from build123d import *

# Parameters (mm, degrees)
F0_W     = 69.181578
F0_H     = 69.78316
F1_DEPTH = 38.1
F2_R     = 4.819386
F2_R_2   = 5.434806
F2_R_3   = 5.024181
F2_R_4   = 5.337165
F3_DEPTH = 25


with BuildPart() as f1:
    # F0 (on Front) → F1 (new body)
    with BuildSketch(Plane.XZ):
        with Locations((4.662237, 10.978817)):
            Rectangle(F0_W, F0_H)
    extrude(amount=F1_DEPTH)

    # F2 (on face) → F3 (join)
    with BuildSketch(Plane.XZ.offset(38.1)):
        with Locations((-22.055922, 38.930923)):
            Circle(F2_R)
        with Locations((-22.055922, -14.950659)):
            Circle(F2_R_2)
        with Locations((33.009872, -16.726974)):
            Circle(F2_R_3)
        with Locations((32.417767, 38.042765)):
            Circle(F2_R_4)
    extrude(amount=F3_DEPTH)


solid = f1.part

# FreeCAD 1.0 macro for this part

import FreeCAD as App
import Part
import Sketcher

doc = App.newDocument("Part")
body = doc.addObject("PartDesign::Body", "Body")

sketch1 = body.newObject("Sketcher::SketchObject", "Sketch")
sketch1.AttachmentSupport = (doc.getObject("XZ_Plane"), [""])
sketch1.MapMode = "FlatFace"
sketch1.addGeometry([
    Part.LineSegment(App.Vector(-29.928552, 45.870397, 0), App.Vector(-29.928552, -23.912763, 0)),
    Part.LineSegment(App.Vector(-29.928552, -23.912763, 0), App.Vector(39.253026, -23.912763, 0)),
    Part.LineSegment(App.Vector(39.253026, -23.912763, 0), App.Vector(39.253026, 45.870397, 0)),
    Part.LineSegment(App.Vector(39.253026, 45.870397, 0), App.Vector(-29.928552, 45.870397, 0)),
], False)
sketch1.addConstraint([
    Sketcher.Constraint("Coincident", 0, 2, 1, 1),
    Sketcher.Constraint("Coincident", 1, 2, 2, 1),
    Sketcher.Constraint("Coincident", 2, 2, 3, 1),
    Sketcher.Constraint("Coincident", 3, 2, 0, 1),
    Sketcher.Constraint("Vertical", 0),
    Sketcher.Constraint("Horizontal", 1),
    Sketcher.Constraint("Vertical", 2),
    Sketcher.Constraint("Horizontal", 3),
    Sketcher.Constraint("DistanceX", 1, 1, 1, 2, 69.181578),
    Sketcher.Constraint("DistanceY", 0, 2, 0, 1, 69.78316),
    Sketcher.Constraint("DistanceX", 0, 2, -1, 1, 29.928552),
    Sketcher.Constraint("DistanceY", 0, 2, -1, 1, 23.912763),
])
pad1 = body.newObject("PartDesign::Pad", "Pad")
pad1.Profile = sketch1
pad1.Length = 38.1

sketch2 = body.newObject("Sketcher::SketchObject", "Sketch001")
sketch2.AttachmentSupport = (doc.getObject("XZ_Plane"), [""])
sketch2.MapMode = "FlatFace"
sketch2.AttachmentOffset = App.Placement(App.Vector(0, 0, 38.1), App.Rotation())
sketch2.addGeometry([
    Part.Circle(App.Vector(-22.055922, 38.930923, 0), App.Vector(0, 0, 1), 4.819386),
    Part.Circle(App.Vector(-22.055922, -14.950659, 0), App.Vector(0, 0, 1), 5.434806),
    Part.Circle(App.Vector(33.009872, -16.726974, 0), App.Vector(0, 0, 1), 5.024181),
    Part.Circle(App.Vector(32.417767, 38.042765, 0), App.Vector(0, 0, 1), 5.337165),
], False)
sketch2.addConstraint([
    Sketcher.Constraint("Vertical", 0, 3, 1, 3),
    Sketcher.Constraint("Diameter", 2, 10.048362),
    Sketcher.Constraint("Diameter", 3, 10.67433),
    Sketcher.Constraint("Diameter", 0, 9.638772),
    Sketcher.Constraint("Diameter", 1, 10.869612),
    Sketcher.Constraint("DistanceX", 0, 3, -1, 1, 22.055922),
    Sketcher.Constraint("DistanceY", 1, 3, -1, 1, 14.950659),
    Sketcher.Constraint("DistanceX", 0, 3, 3, 3, 54.473689),
    Sketcher.Constraint("DistanceY", 2, 3, 3, 3, 54.769739),
    Sketcher.Constraint("DistanceY", -1, 1, 0, 3, 38.930923),
    Sketcher.Constraint("DistanceX", -1, 1, 2, 3, 33.009872),
    Sketcher.Constraint("DistanceY", 2, 3, -1, 1, 16.726974),
])
pad2 = body.newObject("PartDesign::Pad", "Pad001")
pad2.Profile = sketch2
pad2.Length = 25

doc.recompute()
